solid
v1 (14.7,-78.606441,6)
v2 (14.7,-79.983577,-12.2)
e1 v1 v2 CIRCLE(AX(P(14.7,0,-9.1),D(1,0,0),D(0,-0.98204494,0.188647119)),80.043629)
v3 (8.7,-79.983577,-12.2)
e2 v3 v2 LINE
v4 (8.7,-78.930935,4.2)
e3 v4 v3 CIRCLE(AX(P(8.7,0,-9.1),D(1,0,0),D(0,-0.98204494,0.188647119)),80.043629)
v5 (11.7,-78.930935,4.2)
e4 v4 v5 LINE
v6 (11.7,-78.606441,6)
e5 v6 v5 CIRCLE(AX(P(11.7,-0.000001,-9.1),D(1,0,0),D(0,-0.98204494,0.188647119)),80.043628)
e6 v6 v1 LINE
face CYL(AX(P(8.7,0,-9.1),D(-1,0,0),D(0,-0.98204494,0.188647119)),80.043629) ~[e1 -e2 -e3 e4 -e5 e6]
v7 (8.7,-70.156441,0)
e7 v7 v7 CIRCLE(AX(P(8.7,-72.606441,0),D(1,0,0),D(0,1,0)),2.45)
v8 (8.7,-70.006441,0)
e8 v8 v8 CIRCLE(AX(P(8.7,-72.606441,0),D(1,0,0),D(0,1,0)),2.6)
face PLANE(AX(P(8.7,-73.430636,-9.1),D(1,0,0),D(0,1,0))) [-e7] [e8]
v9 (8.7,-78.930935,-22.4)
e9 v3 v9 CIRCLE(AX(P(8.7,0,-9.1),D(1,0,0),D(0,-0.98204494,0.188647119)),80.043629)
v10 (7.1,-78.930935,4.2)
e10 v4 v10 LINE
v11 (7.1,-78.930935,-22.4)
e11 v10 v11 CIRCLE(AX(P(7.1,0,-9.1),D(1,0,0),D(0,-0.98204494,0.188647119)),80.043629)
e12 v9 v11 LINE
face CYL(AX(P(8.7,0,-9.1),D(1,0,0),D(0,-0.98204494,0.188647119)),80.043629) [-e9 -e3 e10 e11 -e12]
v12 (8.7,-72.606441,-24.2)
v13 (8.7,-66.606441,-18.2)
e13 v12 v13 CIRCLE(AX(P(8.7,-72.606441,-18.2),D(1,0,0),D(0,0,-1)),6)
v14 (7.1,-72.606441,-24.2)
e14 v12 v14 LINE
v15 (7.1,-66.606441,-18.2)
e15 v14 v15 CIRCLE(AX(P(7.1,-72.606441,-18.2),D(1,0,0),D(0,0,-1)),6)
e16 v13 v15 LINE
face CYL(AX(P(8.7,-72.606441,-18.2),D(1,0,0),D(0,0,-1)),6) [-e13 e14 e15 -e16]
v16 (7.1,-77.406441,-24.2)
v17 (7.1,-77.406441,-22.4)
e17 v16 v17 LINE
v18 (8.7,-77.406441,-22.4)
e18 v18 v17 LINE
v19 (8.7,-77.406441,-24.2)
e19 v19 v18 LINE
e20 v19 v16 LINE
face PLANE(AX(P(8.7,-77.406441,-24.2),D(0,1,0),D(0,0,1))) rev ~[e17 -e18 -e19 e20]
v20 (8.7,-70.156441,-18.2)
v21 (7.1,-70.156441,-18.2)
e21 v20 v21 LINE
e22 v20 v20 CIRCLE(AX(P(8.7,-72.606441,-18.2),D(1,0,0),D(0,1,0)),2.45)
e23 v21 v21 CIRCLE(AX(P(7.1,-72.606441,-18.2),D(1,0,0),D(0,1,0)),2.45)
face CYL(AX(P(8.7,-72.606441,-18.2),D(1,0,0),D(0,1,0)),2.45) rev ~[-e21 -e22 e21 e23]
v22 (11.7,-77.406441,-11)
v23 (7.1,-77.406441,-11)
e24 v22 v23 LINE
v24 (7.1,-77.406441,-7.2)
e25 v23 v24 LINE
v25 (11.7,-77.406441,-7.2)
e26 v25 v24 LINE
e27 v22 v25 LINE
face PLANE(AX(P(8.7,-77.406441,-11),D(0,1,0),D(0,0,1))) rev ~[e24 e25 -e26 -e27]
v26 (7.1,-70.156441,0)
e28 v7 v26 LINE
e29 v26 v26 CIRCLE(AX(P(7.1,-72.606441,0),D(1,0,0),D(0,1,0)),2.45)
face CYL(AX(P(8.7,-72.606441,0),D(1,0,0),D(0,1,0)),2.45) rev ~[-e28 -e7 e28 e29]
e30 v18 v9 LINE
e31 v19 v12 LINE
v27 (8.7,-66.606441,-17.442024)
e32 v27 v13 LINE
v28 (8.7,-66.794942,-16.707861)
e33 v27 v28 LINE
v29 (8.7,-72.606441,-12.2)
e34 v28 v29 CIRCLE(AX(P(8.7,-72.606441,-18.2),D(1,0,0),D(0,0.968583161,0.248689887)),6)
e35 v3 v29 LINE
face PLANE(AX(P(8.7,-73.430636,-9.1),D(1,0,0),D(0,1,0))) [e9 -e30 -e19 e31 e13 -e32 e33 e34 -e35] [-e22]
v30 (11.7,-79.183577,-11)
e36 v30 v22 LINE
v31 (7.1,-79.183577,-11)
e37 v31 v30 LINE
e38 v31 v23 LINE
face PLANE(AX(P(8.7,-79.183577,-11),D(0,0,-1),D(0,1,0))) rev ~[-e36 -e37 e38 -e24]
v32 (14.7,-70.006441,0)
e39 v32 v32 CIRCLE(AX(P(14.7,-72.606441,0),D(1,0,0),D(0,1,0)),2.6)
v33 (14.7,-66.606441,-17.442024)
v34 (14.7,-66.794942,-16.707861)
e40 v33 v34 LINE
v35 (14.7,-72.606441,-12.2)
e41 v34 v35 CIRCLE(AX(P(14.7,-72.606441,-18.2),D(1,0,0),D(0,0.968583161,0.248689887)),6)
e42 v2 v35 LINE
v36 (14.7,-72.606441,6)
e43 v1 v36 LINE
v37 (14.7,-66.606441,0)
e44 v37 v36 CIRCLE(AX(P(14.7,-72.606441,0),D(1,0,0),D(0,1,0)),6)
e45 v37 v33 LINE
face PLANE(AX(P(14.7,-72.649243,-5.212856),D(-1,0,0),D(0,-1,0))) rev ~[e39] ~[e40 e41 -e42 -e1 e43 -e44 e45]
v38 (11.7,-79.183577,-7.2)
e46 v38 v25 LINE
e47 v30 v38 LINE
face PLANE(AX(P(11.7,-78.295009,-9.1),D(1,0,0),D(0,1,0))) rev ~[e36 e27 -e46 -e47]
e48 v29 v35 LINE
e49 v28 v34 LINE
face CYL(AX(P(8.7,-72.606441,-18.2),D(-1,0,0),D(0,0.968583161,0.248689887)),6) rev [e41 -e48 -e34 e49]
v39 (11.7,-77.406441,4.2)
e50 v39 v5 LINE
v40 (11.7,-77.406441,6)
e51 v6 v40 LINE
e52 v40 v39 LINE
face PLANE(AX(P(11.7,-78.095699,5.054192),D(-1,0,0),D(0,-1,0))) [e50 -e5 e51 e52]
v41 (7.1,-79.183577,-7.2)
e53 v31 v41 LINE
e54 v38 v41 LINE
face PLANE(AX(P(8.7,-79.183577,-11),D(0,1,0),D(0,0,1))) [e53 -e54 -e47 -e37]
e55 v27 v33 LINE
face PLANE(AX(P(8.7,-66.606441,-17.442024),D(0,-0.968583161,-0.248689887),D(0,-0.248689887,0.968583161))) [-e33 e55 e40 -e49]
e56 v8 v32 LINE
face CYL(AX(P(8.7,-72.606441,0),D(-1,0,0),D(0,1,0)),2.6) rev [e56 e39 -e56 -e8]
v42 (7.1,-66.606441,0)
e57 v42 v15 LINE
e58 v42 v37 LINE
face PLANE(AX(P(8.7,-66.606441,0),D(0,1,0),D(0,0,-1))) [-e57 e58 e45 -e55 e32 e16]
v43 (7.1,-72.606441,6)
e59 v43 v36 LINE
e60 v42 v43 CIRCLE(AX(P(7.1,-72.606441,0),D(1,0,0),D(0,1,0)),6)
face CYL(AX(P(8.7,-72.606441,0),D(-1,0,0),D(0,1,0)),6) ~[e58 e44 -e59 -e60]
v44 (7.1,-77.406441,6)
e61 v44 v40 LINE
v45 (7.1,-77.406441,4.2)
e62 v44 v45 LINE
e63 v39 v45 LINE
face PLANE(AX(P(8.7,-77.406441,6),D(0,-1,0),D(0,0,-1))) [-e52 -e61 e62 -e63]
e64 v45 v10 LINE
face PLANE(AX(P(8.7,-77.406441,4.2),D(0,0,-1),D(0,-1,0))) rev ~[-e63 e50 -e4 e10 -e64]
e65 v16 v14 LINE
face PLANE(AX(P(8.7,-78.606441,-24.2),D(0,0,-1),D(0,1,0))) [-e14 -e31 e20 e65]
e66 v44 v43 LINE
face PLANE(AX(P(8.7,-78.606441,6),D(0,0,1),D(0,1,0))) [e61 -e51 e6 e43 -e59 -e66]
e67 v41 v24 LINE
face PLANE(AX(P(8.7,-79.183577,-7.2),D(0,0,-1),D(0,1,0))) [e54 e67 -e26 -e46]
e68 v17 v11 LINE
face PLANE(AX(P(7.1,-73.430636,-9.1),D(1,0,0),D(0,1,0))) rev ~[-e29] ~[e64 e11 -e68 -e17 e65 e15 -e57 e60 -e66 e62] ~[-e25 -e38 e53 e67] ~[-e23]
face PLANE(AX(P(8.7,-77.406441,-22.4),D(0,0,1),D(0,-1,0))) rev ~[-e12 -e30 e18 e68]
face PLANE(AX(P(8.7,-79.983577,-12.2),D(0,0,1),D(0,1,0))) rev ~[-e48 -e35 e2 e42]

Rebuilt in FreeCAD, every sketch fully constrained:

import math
import FreeCAD as App
import Part
import Sketcher

V = App.Vector
Q = App.Units.Quantity


def add_polygon(sketch, points):
    """Adds a closed chain of lines whose ends are joined by coincident constraints."""
    first, n = sketch.GeometryCount, len(points)
    for a, b in zip(points, points[1:] + points[:1]):
        sketch.addGeometry(Part.LineSegment(App.Vector(*a, 0), App.Vector(*b, 0)), False)
    for i in range(n):
        sketch.addConstraint(Sketcher.Constraint("Coincident", first + i, 2, first + (i + 1) % n, 1))

doc = App.newDocument("Part")
params = doc.addObject("Spreadsheet::Sheet", "Params")
for row, (alias, value) in enumerate([
    ("sketch1_radius", "6 mm"),
    ("sketch1_diameter", "4.9 mm"),
    ("sketch1_width", "6 mm"),
    ("sketch1_height", "18.2 mm"),
    ("pad1_length", "1.6 mm"),
    ("sketch2_radius", "6 mm"),
    ("sketch2_diameter", "5.2 mm"),
    ("sketch2_width", "6 mm"),
    ("pad2_length", "6 mm"),
    ("sketch3_width", "1.2 mm"),
    ("sketch3_height", "1.8 mm"),
    ("sketch3_height2", "3.8 mm"),
    ("pocket1_length", "1.6 mm"),
    ("pocket1_length2", "3 mm"),
], start=1):
    params.set(f"A{row}", alias)
    params.set(f"B{row}", "=" + value)
    params.setAlias(f"B{row}", alias)

body = doc.addObject("PartDesign::Body", "Body")

# Sketch on YZ plane
sketch1 = doc.addObject("Sketcher::SketchObject", "Sketch")
body.addObject(sketch1)
sketch1.AttachmentSupport = (doc.YZ_Plane, [""])
sketch1.MapMode = "FlatFace"
sketch1.AttachmentOffset = App.Placement(V(0, 0, 8.7), App.Rotation())
sketch1.addGeometry(Part.ArcOfCircle(Part.Circle(V(72.6, -9.1, 0), V(0, 0, 1), 80), math.radians(169), math.radians(191)), False)
sketch1.addGeometry(Part.LineSegment(V(-6, -24.2, 0), V(0, -24.2, 0)), False)
sketch1.addGeometry(Part.ArcOfCircle(Part.Circle(V(0, -18.2, 0), V(0, 0, 1), 6), math.radians(-90), math.radians(0)), False)
sketch1.addGeometry(Part.LineSegment(V(6, -18.2, 0), V(6, 0, 0)), False)
sketch1.addGeometry(Part.ArcOfCircle(Part.Circle(V(0, 0, 0), V(0, 0, 1), 6), math.radians(0), math.radians(90)), False)
sketch1.addGeometry(Part.LineSegment(V(0, 6, 0), V(-6, 6, 0)), False)
sketch1.addGeometry(Part.Circle(V(0, -18.2, 0), V(0, 0, 1), 2.5), False)
sketch1.addGeometry(Part.Circle(V(0, 0, 0), V(0, 0, 1), 2.5), False)
sketch1.addConstraint(Sketcher.Constraint("Coincident", 0, 2, 1, 1))
sketch1.addConstraint(Sketcher.Constraint("Tangent", 1, 2, 2, 1))
sketch1.addConstraint(Sketcher.Constraint("Tangent", 2, 2, 3, 1))
sketch1.addConstraint(Sketcher.Constraint("Tangent", 3, 2, 4, 1))
sketch1.addConstraint(Sketcher.Constraint("Tangent", 4, 2, 5, 1))
sketch1.addConstraint(Sketcher.Constraint("Coincident", 5, 2, 0, 1))
sketch1.addConstraint(Sketcher.Constraint("Horizontal", 1))
sketch1.addConstraint(Sketcher.Constraint("Vertical", 3))
sketch1.addConstraint(Sketcher.Constraint("Horizontal", 5))
sketch1.addConstraint(Sketcher.Constraint("Coincident", 4, 3, -1, 1))
sketch1.addConstraint(Sketcher.Constraint("Coincident", 7, 3, -1, 1))
sketch1.addConstraint(Sketcher.Constraint("Coincident", 6, 3, 2, 3))
sketch1.addConstraint(Sketcher.Constraint("Equal", 2, 4))
sketch1.addConstraint(Sketcher.Constraint("Equal", 6, 7))
sketch1.addConstraint(Sketcher.Constraint("Vertical", 0, 2, 5, 2))
sketch1.addConstraint(Sketcher.Constraint("Radius", 2, 6.0))
sketch1.addConstraint(Sketcher.Constraint("Diameter", 6, 4.9))
sketch1.addConstraint(Sketcher.Constraint("DistanceX", 1, 1, 1, 2, 6.0))
sketch1.addConstraint(Sketcher.Constraint("DistanceY", 3, 1, 3, 2, 18.2))
sketch1.addConstraint(Sketcher.Constraint("Radius", 0, 80.043629))
sketch1.setExpression("Constraints[15]", "Params.sketch1_radius")
sketch1.setExpression("Constraints[16]", "Params.sketch1_diameter")
sketch1.setExpression("Constraints[17]", "Params.sketch1_width")
sketch1.setExpression("Constraints[18]", "Params.sketch1_height")
pad1 = doc.addObject("PartDesign::Pad", "Pad")
body.addObject(pad1)
pad1.Profile = sketch1
pad1.setExpression("Length", "Params.pad1_length")
pad1.Reversed = True

# Sketch on YZ plane
sketch2 = doc.addObject("Sketcher::SketchObject", "Sketch001")
body.addObject(sketch2)
sketch2.AttachmentSupport = (doc.YZ_Plane, [""])
sketch2.MapMode = "FlatFace"
sketch2.AttachmentOffset = App.Placement(V(0, 0, 8.7), App.Rotation())
sketch2.addGeometry(Part.ArcOfCircle(Part.Circle(V(0, -18.2, 0), V(0, 0, 1), 6), math.radians(14), math.radians(90)), False)
sketch2.addGeometry(Part.LineSegment(V(5.8, -16.7, 0), V(6, -17.4, 0)), False)
sketch2.addGeometry(Part.LineSegment(V(6, -17.4, 0), V(6, 0, 0)), False)
sketch2.addGeometry(Part.ArcOfCircle(Part.Circle(V(0, 0, 0), V(0, 0, 1), 6), math.radians(0), math.radians(90)), False)
sketch2.addGeometry(Part.LineSegment(V(0, 6, 0), V(-6, 6, 0)), False)
sketch2.addGeometry(Part.ArcOfCircle(Part.Circle(V(72.6, -9.1, 0), V(0, 0, 1), 80), math.radians(169.13), math.radians(182.22)), False)
sketch2.addGeometry(Part.LineSegment(V(-7.4, -12.2, 0), V(0, -12.2, 0)), False)
sketch2.addGeometry(Part.Circle(V(0, 0, 0), V(0, 0, 1), 2.6), False)
sketch2.addConstraint(Sketcher.Constraint("Tangent", 0, 1, 1, 1))
sketch2.addConstraint(Sketcher.Constraint("Coincident", 1, 2, 2, 1))
sketch2.addConstraint(Sketcher.Constraint("Tangent", 2, 2, 3, 1))
sketch2.addConstraint(Sketcher.Constraint("Tangent", 3, 2, 4, 1))
sketch2.addConstraint(Sketcher.Constraint("Coincident", 4, 2, 5, 1))
sketch2.addConstraint(Sketcher.Constraint("Coincident", 5, 2, 6, 1))
sketch2.addConstraint(Sketcher.Constraint("Tangent", 6, 2, 0, 2))
sketch2.addConstraint(Sketcher.Constraint("Vertical", 2))
sketch2.addConstraint(Sketcher.Constraint("Horizontal", 4))
sketch2.addConstraint(Sketcher.Constraint("Horizontal", 6))
sketch2.addConstraint(Sketcher.Constraint("Coincident", 3, 3, -1, 1))
sketch2.addConstraint(Sketcher.Constraint("Coincident", 7, 3, -1, 1))
sketch2.addConstraint(Sketcher.Constraint("Equal", 0, 3))
sketch2.addConstraint(Sketcher.Constraint("PointOnObject", 0, 3, -2))
sketch2.addConstraint(Sketcher.Constraint("Radius", 0, 6.0))
sketch2.addConstraint(Sketcher.Constraint("Diameter", 7, 5.2))
sketch2.addConstraint(Sketcher.Constraint("DistanceX", 4, 2, 4, 1, 6.0))
sketch2.addConstraint(Sketcher.Constraint("Angle", 1, Q("-75.6 deg")))
sketch2.addConstraint(Sketcher.Constraint("DistanceY", 0, 3, -1, 1, 18.2))
sketch2.addConstraint(Sketcher.Constraint("DistanceY", 5, 3, -1, 1, 9.1))
sketch2.addConstraint(Sketcher.Constraint("Radius", 5, 80.043629))
sketch2.setExpression("Constraints[14]", "Params.sketch2_radius")
sketch2.setExpression("Constraints[15]", "Params.sketch2_diameter")
sketch2.setExpression("Constraints[16]", "Params.sketch2_width")
pad2 = doc.addObject("PartDesign::Pad", "Pad001")
body.addObject(pad2)
pad2.Profile = sketch2
pad2.setExpression("Length", "Params.pad2_length")

# Sketch on YZ plane
sketch3 = doc.addObject("Sketcher::SketchObject", "Sketch002")
body.addObject(sketch3)
sketch3.AttachmentSupport = (doc.YZ_Plane, [""])
sketch3.MapMode = "FlatFace"
sketch3.AttachmentOffset = App.Placement(V(0, 0, 8.7), App.Rotation())
sketch3.addGeometry(Part.ArcOfCircle(Part.Circle(V(72.6, -9.1, 0), V(0, 0, 1), 80), math.radians(-170.44), math.radians(-169.13)), False)  # 0
sketch3.addGeometry(Part.LineSegment(V(-6, -24.2, 0), V(-4.8, -24.2, 0)), False)  # 1
sketch3.addGeometry(Part.LineSegment(V(-4.8, -24.2, 0), V(-4.8, -22.4, 0)), False)  # 2
sketch3.addGeometry(Part.LineSegment(V(-4.8, -22.4, 0), V(-6.3, -22.4, 0)), False)  # 3
add_polygon(sketch3, [(-6.6, -7.2), (-6.6, -11), (-4.8, -11), (-4.8, -7.2)])  # lines 4-7
sketch3.addGeometry(Part.LineSegment(V(-4.8, 6, 0), V(-6, 6, 0)), False)  # 8
sketch3.addGeometry(Part.ArcOfCircle(Part.Circle(V(72.6, -9.1, 0), V(0, 0, 1), 80), math.radians(169.13), math.radians(170.44)), False)  # 9
sketch3.addGeometry(Part.LineSegment(V(-6.3, 4.2, 0), V(-4.8, 4.2, 0)), False)  # 10
sketch3.addGeometry(Part.LineSegment(V(-4.8, 4.2, 0), V(-4.8, 6, 0)), False)  # 11
sketch3.addConstraint(Sketcher.Constraint("Coincident", 0, 2, 1, 1))
sketch3.addConstraint(Sketcher.Constraint("Coincident", 1, 2, 2, 1))
sketch3.addConstraint(Sketcher.Constraint("Coincident", 2, 2, 3, 1))
sketch3.addConstraint(Sketcher.Constraint("Coincident", 3, 2, 0, 1))
sketch3.addConstraint(Sketcher.Constraint("Coincident", 8, 2, 9, 1))
sketch3.addConstraint(Sketcher.Constraint("Coincident", 9, 2, 10, 1))
sketch3.addConstraint(Sketcher.Constraint("Coincident", 10, 2, 11, 1))
sketch3.addConstraint(Sketcher.Constraint("Coincident", 11, 2, 8, 1))
sketch3.addConstraint(Sketcher.Constraint("Horizontal", 1))
sketch3.addConstraint(Sketcher.Constraint("Vertical", 2))
sketch3.addConstraint(Sketcher.Constraint("Horizontal", 3))
sketch3.addConstraint(Sketcher.Constraint("Vertical", 4))
sketch3.addConstraint(Sketcher.Constraint("Horizontal", 5))
sketch3.addConstraint(Sketcher.Constraint("Vertical", 6))
sketch3.addConstraint(Sketcher.Constraint("Horizontal", 7))
sketch3.addConstraint(Sketcher.Constraint("Horizontal", 8))
sketch3.addConstraint(Sketcher.Constraint("Horizontal", 10))
sketch3.addConstraint(Sketcher.Constraint("Vertical", 11))
sketch3.addConstraint(Sketcher.Constraint("Coincident", 9, 3, 0, 3))
sketch3.addConstraint(Sketcher.Constraint("Equal", 0, 9))
sketch3.addConstraint(Sketcher.Constraint("Vertical", 2, 2, 5, 2))
sketch3.addConstraint(Sketcher.Constraint("Vertical", 0, 2, 8, 2))
sketch3.addConstraint(Sketcher.Constraint("Vertical", 3, 2, 9, 2))
sketch3.addConstraint(Sketcher.Constraint("Vertical", 6, 2, 10, 2))
sketch3.addConstraint(Sketcher.Constraint("DistanceX", 1, 1, 1, 2, 1.2))
sketch3.addConstraint(Sketcher.Constraint("DistanceY", 2, 1, 2, 2, 1.8))
sketch3.addConstraint(Sketcher.Constraint("DistanceY", 4, 2, 4, 1, 3.8))
sketch3.addConstraint(Sketcher.Constraint("DistanceX", 0, 2, -1, 1, 6.0))
sketch3.addConstraint(Sketcher.Constraint("DistanceY", 4, 2, -1, 1, 11.0))
sketch3.addConstraint(Sketcher.Constraint("DistanceY", -1, 1, 8, 2, 6.0))
sketch3.addConstraint(Sketcher.Constraint("DistanceY", 1, 2, 6, 2, 17.0))
sketch3.addConstraint(Sketcher.Constraint("Radius", 0, 80.043628))
sketch3.addConstraint(Sketcher.Constraint("DistanceX", 5, 1, 5, 2, 1.777136))
sketch3.setExpression("Constraints[28]", "Params.sketch3_width")
sketch3.setExpression("Constraints[29]", "Params.sketch3_height")
sketch3.setExpression("Constraints[30]", "Params.sketch3_height2")
pocket1 = doc.addObject("PartDesign::Pocket", "Pocket")
body.addObject(pocket1)
pocket1.Profile = sketch3
pocket1.Type = "TwoLengths"
pocket1.setExpression("Length", "Params.pocket1_length")
pocket1.setExpression("Length2", "Params.pocket1_length2")
body2 = doc.addObject("PartDesign::Body", "Body001")
doc.recompute()

body.Placement = App.Placement(V(0, -72.606441, 0), App.Rotation(V(0, 0, 1), 0))
boolean = doc.addObject("PartDesign::Boolean", "Boolean")
body2.addObject(boolean)
boolean.Type = "Fuse"
boolean.addObjects([body])

doc.recompute()
